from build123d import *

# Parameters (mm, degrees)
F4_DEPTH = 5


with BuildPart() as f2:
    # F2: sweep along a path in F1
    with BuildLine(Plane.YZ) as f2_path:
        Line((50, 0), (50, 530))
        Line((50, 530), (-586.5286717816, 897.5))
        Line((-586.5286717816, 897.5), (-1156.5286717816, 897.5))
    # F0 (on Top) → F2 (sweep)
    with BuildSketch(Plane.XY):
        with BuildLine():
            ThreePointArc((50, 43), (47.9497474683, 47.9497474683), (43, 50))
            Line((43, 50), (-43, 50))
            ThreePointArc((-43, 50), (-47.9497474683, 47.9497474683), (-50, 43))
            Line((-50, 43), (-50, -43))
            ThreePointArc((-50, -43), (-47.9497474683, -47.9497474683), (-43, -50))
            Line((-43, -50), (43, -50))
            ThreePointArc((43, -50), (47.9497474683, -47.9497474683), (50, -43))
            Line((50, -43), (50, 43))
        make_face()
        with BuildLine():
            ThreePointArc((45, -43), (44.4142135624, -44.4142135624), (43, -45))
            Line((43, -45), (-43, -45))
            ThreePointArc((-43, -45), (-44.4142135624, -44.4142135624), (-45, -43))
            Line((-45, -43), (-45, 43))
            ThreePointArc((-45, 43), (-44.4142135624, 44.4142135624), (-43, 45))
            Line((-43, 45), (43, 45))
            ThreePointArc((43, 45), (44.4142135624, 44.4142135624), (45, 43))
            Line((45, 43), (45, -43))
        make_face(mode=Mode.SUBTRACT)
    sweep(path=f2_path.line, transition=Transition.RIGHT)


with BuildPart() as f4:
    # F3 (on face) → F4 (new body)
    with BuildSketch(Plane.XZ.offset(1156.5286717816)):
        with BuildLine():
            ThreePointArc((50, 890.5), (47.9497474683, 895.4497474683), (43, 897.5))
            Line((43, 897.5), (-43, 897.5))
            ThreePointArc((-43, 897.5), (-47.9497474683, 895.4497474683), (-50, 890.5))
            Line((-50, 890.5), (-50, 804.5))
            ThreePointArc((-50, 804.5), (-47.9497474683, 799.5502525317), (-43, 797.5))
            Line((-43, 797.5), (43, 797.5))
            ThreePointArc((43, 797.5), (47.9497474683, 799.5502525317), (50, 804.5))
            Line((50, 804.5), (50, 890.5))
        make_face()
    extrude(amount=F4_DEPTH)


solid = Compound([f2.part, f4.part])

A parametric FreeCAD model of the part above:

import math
import FreeCAD as App
import Part
import Sketcher

V = App.Vector
Q = App.Units.Quantity

doc = App.newDocument("Part")
body = doc.addObject("PartDesign::Body", "Body")

# Sketch on XY plane
sketch1 = body.newObject("Sketcher::SketchObject", "Sketch")
sketch1.AttachmentSupport = (doc.getObject("XY_Plane"), [""])
sketch1.MapMode = "FlatFace"
sketch1.addGeometry(Part.ArcOfCircle(Part.Circle(V(43, 43, 0), V(0, 0, 1), 7), math.radians(0), math.radians(90)), False)
sketch1.addGeometry(Part.LineSegment(V(43, 50, 0), V(-43, 50, 0)), False)
sketch1.addGeometry(Part.ArcOfCircle(Part.Circle(V(-43, 43, 0), V(0, 0, 1), 7), math.radians(90), math.radians(180)), False)
sketch1.addGeometry(Part.LineSegment(V(-50, 43, 0), V(-50, -43, 0)), False)
sketch1.addGeometry(Part.ArcOfCircle(Part.Circle(V(-43, -43, 0), V(0, 0, 1), 7), math.radians(180), math.radians(270)), False)
sketch1.addGeometry(Part.LineSegment(V(-43, -50, 0), V(43, -50, 0)), False)
sketch1.addGeometry(Part.ArcOfCircle(Part.Circle(V(43, -43, 0), V(0, 0, 1), 7), math.radians(-90), math.radians(0)), False)
sketch1.addGeometry(Part.LineSegment(V(50, -43, 0), V(50, 43, 0)), False)
sketch1.addGeometry(Part.LineSegment(V(45, 43, 0), V(45, -43, 0)), False)
sketch1.addGeometry(Part.ArcOfCircle(Part.Circle(V(43, -43, 0), V(0, 0, 1), 2), math.radians(-90), math.radians(0)), False)
sketch1.addGeometry(Part.LineSegment(V(43, -45, 0), V(-43, -45, 0)), False)
sketch1.addGeometry(Part.ArcOfCircle(Part.Circle(V(-43, -43, 0), V(0, 0, 1), 2), math.radians(180), math.radians(270)), False)
sketch1.addGeometry(Part.LineSegment(V(-45, -43, 0), V(-45, 43, 0)), False)
sketch1.addGeometry(Part.ArcOfCircle(Part.Circle(V(-43, 43, 0), V(0, 0, 1), 2), math.radians(90), math.radians(180)), False)
sketch1.addGeometry(Part.LineSegment(V(-43, 45, 0), V(43, 45, 0)), False)
sketch1.addGeometry(Part.ArcOfCircle(Part.Circle(V(43, 43, 0), V(0, 0, 1), 2), math.radians(0), math.radians(90)), False)
sketch1.addConstraint(Sketcher.Constraint("Tangent", 0, 2, 1, 1))
sketch1.addConstraint(Sketcher.Constraint("Tangent", 1, 2, 2, 1))
sketch1.addConstraint(Sketcher.Constraint("Tangent", 2, 2, 3, 1))
sketch1.addConstraint(Sketcher.Constraint("Tangent", 3, 2, 4, 1))
sketch1.addConstraint(Sketcher.Constraint("Tangent", 4, 2, 5, 1))
sketch1.addConstraint(Sketcher.Constraint("Tangent", 5, 2, 6, 1))
sketch1.addConstraint(Sketcher.Constraint("Tangent", 6, 2, 7, 1))
sketch1.addConstraint(Sketcher.Constraint("Tangent", 7, 2, 0, 1))
sketch1.addConstraint(Sketcher.Constraint("Tangent", 8, 2, 9, 2))
sketch1.addConstraint(Sketcher.Constraint("Tangent", 9, 1, 10, 1))
sketch1.addConstraint(Sketcher.Constraint("Tangent", 10, 2, 11, 2))
sketch1.addConstraint(Sketcher.Constraint("Tangent", 11, 1, 12, 1))
sketch1.addConstraint(Sketcher.Constraint("Tangent", 12, 2, 13, 2))
sketch1.addConstraint(Sketcher.Constraint("Tangent", 13, 1, 14, 1))
sketch1.addConstraint(Sketcher.Constraint("Tangent", 14, 2, 15, 2))
sketch1.addConstraint(Sketcher.Constraint("Tangent", 15, 1, 8, 1))
sketch1.addConstraint(Sketcher.Constraint("Horizontal", 1))
sketch1.addConstraint(Sketcher.Constraint("Vertical", 3))
sketch1.addConstraint(Sketcher.Constraint("Horizontal", 5))
sketch1.addConstraint(Sketcher.Constraint("Vertical", 7))
sketch1.addConstraint(Sketcher.Constraint("Vertical", 8))
sketch1.addConstraint(Sketcher.Constraint("Horizontal", 10))
sketch1.addConstraint(Sketcher.Constraint("Vertical", 12))
sketch1.addConstraint(Sketcher.Constraint("Horizontal", 14))
sketch1.addConstraint(Sketcher.Constraint("Coincident", 9, 3, 6, 3))
sketch1.addConstraint(Sketcher.Constraint("Coincident", 11, 3, 4, 3))
sketch1.addConstraint(Sketcher.Constraint("Coincident", 13, 3, 2, 3))
sketch1.addConstraint(Sketcher.Constraint("Equal", 0, 2))
sketch1.addConstraint(Sketcher.Constraint("Equal", 2, 4))
sketch1.addConstraint(Sketcher.Constraint("Equal", 4, 6))
sketch1.addConstraint(Sketcher.Constraint("Equal", 13, 15))
sketch1.addConstraint(Sketcher.Constraint("Symmetric", 0, 3, 4, 3, -1, 1))
sketch1.addConstraint(Sketcher.Constraint("Equal", 14, 3))
sketch1.addConstraint(Sketcher.Constraint("Radius", 0, Q("7 mm")))
sketch1.addConstraint(Sketcher.Constraint("Radius", 9, Q("2 mm")))
sketch1.addConstraint(Sketcher.Constraint("DistanceX", 1, 2, 1, 1, Q("86 mm")))

# Sketch on YZ plane
sketch2 = body.newObject("Sketcher::SketchObject", "Sketch001")
sketch2.AttachmentSupport = (doc.getObject("YZ_Plane"), [""])
sketch2.MapMode = "FlatFace"
sketch2.addGeometry(Part.LineSegment(V(50, 0, 0), V(50, 530, 0)), False)
sketch2.addGeometry(Part.LineSegment(V(50, 530, 0), V(-586.528672, 897.5, 0)), False)
sketch2.addGeometry(Part.LineSegment(V(-586.528672, 897.5, 0), V(-1156.528672, 897.5, 0)), False)
sketch2.addConstraint(Sketcher.Constraint("Coincident", 0, 2, 1, 1))
sketch2.addConstraint(Sketcher.Constraint("Coincident", 1, 2, 2, 1))
sketch2.addConstraint(Sketcher.Constraint("Vertical", 0))
sketch2.addConstraint(Sketcher.Constraint("Horizontal", 2))
sketch2.addConstraint(Sketcher.Constraint("PointOnObject", 0, 1, -1))
sketch2.addConstraint(Sketcher.Constraint("DistanceX", 2, 2, 2, 1, Q("570 mm")))
sketch2.addConstraint(Sketcher.Constraint("DistanceY", 0, 1, 0, 2, Q("530 mm")))
sketch2.addConstraint(Sketcher.Constraint("Angle", 1, Q("150 deg")))
sketch2.addConstraint(Sketcher.Constraint("Distance", 1, Q("735 mm")))
sketch2.addConstraint(Sketcher.Constraint("DistanceX", -1, 1, 0, 1, Q("50 mm")))
doc.recompute()

additivepipe = body.newObject("PartDesign::AdditivePipe", "AdditivePipe")
additivepipe.Profile = sketch1
additivepipe.Spine = (sketch2, ["Edge1", "Edge2", "Edge3"])
additivepipe.Transition = "Right corner"
body2 = doc.addObject("PartDesign::Body", "Body001")

# Sketch on XZ plane
sketch3 = body2.newObject("Sketcher::SketchObject", "Sketch002")
sketch3.AttachmentSupport = (doc.getObject("XZ_Plane001"), [""])
sketch3.MapMode = "FlatFace"
sketch3.AttachmentOffset = App.Placement(V(0, 0, 1156.528672), App.Rotation())
sketch3.addGeometry(Part.ArcOfCircle(Part.Circle(V(43, 890.5, 0), V(0, 0, 1), 7), math.radians(0), math.radians(90)), False)
sketch3.addGeometry(Part.LineSegment(V(43, 897.5, 0), V(-43, 897.5, 0)), False)
sketch3.addGeometry(Part.ArcOfCircle(Part.Circle(V(-43, 890.5, 0), V(0, 0, 1), 7), math.radians(90), math.radians(180)), False)
sketch3.addGeometry(Part.LineSegment(V(-50, 890.5, 0), V(-50, 804.5, 0)), False)
sketch3.addGeometry(Part.ArcOfCircle(Part.Circle(V(-43, 804.5, 0), V(0, 0, 1), 7), math.radians(180), math.radians(270)), False)
sketch3.addGeometry(Part.LineSegment(V(-43, 797.5, 0), V(43, 797.5, 0)), False)
sketch3.addGeometry(Part.ArcOfCircle(Part.Circle(V(43, 804.5, 0), V(0, 0, 1), 7), math.radians(-90), math.radians(0)), False)
sketch3.addGeometry(Part.LineSegment(V(50, 804.5, 0), V(50, 890.5, 0)), False)
sketch3.addConstraint(Sketcher.Constraint("Tangent", 0, 2, 1, 1))
sketch3.addConstraint(Sketcher.Constraint("Tangent", 1, 2, 2, 1))
sketch3.addConstraint(Sketcher.Constraint("Tangent", 2, 2, 3, 1))
sketch3.addConstraint(Sketcher.Constraint("Tangent", 3, 2, 4, 1))
sketch3.addConstraint(Sketcher.Constraint("Tangent", 4, 2, 5, 1))
sketch3.addConstraint(Sketcher.Constraint("Tangent", 5, 2, 6, 1))
sketch3.addConstraint(Sketcher.Constraint("Tangent", 6, 2, 7, 1))
sketch3.addConstraint(Sketcher.Constraint("Tangent", 7, 2, 0, 1))
sketch3.addConstraint(Sketcher.Constraint("Horizontal", 1))
sketch3.addConstraint(Sketcher.Constraint("Vertical", 3))
sketch3.addConstraint(Sketcher.Constraint("Horizontal", 5))
sketch3.addConstraint(Sketcher.Constraint("Vertical", 7))
sketch3.addConstraint(Sketcher.Constraint("Equal", 0, 2))
sketch3.addConstraint(Sketcher.Constraint("Equal", 2, 4))
sketch3.addConstraint(Sketcher.Constraint("Equal", 4, 6))
sketch3.addConstraint(Sketcher.Constraint("Equal", 5, 3))
sketch3.addConstraint(Sketcher.Constraint("Radius", 0, Q("7 mm")))
sketch3.addConstraint(Sketcher.Constraint("DistanceX", 1, 2, 1, 1, Q("86 mm")))
sketch3.addConstraint(Sketcher.Constraint("DistanceX", -1, 1, 0, 3, Q("43 mm")))
sketch3.addConstraint(Sketcher.Constraint("DistanceY", -1, 1, 0, 3, Q("890.5 mm")))
pad1 = body2.newObject("PartDesign::Pad", "Pad")
pad1.Profile = sketch3
pad1.Length = 5

doc.recompute()
